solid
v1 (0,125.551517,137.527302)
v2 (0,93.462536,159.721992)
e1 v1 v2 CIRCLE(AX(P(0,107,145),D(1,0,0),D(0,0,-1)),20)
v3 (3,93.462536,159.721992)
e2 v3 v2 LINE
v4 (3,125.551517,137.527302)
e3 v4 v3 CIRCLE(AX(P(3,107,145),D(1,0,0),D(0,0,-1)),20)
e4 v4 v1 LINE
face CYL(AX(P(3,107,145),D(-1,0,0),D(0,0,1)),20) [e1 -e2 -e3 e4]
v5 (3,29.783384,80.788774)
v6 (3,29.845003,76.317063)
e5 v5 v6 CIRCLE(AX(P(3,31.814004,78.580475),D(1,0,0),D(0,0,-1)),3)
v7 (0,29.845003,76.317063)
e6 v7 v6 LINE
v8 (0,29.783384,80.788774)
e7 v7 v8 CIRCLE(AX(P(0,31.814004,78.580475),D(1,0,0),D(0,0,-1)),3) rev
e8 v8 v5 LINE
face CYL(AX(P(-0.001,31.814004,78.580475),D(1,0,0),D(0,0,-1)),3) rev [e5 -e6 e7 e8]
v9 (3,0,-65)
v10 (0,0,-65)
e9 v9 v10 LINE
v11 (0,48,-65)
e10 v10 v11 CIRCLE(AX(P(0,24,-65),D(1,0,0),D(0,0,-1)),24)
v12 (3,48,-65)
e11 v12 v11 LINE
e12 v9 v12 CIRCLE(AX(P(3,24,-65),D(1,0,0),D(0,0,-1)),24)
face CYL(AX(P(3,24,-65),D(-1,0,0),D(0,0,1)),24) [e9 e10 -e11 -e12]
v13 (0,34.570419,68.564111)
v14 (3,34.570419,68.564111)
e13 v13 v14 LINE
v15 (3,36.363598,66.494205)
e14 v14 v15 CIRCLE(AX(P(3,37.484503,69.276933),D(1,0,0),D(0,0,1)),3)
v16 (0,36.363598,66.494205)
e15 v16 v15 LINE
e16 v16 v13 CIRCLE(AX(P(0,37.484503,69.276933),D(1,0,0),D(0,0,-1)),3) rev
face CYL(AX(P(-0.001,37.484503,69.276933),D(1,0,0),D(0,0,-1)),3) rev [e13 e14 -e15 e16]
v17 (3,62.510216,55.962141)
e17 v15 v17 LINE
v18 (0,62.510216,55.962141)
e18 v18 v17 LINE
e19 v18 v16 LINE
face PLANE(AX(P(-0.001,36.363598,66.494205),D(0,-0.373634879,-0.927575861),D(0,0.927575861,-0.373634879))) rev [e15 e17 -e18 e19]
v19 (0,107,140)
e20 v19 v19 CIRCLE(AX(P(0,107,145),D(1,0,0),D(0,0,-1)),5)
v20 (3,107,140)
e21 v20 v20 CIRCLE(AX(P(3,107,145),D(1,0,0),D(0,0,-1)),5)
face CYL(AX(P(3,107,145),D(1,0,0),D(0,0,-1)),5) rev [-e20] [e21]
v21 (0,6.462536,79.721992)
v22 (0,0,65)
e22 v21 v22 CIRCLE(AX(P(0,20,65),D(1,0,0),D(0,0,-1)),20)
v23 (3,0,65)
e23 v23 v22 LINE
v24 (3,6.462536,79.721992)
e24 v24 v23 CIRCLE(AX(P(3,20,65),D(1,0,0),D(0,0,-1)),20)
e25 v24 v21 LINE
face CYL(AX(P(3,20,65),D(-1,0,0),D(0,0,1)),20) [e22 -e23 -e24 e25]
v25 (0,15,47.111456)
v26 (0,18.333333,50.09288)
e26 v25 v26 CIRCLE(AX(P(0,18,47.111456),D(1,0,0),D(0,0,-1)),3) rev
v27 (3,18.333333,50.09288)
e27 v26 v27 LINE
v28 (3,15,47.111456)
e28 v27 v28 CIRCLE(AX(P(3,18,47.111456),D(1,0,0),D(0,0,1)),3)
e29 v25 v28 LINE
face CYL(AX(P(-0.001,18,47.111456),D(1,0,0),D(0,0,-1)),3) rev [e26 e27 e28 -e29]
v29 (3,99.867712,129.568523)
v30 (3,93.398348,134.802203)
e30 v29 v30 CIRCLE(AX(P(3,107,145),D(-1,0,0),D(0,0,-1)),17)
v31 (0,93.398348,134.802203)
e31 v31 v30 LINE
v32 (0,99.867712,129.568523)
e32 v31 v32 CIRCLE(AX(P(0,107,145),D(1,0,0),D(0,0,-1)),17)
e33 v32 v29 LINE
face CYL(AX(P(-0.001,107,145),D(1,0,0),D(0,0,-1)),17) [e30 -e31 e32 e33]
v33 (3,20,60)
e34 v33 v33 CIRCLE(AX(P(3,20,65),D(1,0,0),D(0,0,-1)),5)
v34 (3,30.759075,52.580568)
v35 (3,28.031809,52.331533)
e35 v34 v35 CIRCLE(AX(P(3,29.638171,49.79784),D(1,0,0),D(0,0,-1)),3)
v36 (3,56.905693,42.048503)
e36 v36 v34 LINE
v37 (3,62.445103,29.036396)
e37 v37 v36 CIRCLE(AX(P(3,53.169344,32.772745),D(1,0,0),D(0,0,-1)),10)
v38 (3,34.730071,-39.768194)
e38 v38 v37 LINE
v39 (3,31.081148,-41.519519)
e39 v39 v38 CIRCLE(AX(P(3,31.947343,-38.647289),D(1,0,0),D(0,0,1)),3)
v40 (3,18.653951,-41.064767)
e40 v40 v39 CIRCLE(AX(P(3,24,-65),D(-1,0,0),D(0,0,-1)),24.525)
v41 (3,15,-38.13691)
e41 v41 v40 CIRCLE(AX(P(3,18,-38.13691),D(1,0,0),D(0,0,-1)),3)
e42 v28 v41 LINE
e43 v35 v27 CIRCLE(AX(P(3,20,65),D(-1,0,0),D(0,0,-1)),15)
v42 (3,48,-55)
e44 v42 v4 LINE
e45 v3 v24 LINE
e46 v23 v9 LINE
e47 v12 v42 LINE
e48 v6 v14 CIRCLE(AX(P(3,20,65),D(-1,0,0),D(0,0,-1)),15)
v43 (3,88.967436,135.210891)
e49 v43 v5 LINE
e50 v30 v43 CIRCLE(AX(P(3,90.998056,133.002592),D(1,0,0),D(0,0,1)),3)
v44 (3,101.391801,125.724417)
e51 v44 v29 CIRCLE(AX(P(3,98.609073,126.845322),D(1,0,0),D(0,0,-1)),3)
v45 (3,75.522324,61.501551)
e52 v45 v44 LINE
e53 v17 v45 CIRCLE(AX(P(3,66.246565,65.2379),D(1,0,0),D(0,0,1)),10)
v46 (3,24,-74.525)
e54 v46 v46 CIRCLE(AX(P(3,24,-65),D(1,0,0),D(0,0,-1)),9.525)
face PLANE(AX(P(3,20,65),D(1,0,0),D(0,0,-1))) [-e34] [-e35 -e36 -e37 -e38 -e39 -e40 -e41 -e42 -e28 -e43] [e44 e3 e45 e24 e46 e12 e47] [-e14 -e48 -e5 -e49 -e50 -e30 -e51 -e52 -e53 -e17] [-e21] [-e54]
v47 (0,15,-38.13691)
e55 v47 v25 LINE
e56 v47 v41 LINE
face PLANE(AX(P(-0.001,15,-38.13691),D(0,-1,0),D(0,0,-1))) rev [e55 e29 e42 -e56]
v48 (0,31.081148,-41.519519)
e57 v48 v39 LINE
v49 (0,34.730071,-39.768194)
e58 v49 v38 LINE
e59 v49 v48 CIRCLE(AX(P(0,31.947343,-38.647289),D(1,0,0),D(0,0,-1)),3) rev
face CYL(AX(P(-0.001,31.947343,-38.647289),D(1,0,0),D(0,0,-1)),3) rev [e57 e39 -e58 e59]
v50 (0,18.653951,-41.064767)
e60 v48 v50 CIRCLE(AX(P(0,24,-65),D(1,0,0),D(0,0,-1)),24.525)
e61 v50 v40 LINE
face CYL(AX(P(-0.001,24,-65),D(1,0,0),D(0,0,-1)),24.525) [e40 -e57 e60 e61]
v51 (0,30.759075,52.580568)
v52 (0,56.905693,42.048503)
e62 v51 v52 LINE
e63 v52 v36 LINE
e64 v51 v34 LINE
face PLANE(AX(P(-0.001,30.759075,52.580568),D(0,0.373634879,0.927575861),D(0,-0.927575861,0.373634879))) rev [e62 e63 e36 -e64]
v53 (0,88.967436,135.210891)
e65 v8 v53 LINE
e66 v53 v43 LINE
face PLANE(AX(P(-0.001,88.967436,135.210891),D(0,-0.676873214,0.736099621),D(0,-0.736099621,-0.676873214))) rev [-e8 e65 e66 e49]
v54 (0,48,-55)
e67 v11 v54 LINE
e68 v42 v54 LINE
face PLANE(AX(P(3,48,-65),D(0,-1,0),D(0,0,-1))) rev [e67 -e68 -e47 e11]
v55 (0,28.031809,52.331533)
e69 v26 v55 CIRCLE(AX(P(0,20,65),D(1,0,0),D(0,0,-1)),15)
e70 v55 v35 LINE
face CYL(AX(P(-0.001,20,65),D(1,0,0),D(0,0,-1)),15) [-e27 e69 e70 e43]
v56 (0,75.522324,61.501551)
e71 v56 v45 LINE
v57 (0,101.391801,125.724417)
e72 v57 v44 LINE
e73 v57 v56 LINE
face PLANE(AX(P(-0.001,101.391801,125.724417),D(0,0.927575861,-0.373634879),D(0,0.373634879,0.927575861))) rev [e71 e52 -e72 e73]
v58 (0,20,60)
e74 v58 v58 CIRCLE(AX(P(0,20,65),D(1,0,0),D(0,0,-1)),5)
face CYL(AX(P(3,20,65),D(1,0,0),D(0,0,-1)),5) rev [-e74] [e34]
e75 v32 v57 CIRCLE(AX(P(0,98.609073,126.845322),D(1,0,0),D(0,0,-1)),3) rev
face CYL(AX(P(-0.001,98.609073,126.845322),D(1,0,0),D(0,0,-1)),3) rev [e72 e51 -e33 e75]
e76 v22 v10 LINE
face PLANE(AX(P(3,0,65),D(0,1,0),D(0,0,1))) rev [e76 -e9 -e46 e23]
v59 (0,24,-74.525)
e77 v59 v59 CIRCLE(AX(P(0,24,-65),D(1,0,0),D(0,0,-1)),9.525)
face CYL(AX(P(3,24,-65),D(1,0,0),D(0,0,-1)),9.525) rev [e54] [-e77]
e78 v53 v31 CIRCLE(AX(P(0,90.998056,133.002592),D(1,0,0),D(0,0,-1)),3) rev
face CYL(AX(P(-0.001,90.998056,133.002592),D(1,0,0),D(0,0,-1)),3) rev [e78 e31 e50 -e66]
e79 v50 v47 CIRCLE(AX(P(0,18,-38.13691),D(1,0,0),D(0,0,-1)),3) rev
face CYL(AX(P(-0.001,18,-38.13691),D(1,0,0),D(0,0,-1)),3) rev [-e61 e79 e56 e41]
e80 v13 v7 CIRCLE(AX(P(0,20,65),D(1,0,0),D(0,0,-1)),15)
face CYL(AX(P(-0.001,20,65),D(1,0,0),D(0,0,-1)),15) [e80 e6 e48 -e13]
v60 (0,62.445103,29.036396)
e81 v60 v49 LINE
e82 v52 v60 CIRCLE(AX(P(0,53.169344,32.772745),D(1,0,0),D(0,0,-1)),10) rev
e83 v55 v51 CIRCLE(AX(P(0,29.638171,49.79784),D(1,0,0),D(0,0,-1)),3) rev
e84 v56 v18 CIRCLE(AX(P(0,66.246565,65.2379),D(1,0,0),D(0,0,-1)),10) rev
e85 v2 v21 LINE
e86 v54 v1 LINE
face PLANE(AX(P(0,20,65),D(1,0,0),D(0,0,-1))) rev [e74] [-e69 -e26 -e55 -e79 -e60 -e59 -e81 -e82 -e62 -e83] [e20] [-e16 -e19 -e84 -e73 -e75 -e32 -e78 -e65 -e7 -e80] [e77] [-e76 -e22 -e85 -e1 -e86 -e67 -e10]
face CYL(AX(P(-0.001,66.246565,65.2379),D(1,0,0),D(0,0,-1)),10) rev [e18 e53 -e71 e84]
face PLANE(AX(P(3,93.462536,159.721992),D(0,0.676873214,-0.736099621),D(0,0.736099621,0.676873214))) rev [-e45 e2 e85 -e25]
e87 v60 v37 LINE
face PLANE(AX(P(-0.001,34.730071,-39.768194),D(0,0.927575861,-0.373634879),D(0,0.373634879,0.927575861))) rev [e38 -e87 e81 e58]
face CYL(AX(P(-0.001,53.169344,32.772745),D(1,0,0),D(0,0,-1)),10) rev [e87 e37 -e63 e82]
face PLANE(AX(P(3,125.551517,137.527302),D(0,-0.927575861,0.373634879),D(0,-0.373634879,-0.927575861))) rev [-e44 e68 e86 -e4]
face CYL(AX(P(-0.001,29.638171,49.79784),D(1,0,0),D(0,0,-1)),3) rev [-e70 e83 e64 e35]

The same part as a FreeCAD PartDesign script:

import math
import FreeCAD as App
import Part
import Sketcher

V = App.Vector

doc = App.newDocument("Part")
body = doc.addObject("PartDesign::Body", "Body")

sketch1 = doc.addObject("Sketcher::SketchObject", "Sketch")
body.addObject(sketch1)
sketch1.AttachmentSupport = (doc.YZ_Plane, [""])
sketch1.MapMode = "FlatFace"
sketch1.addGeometry([
    Part.LineSegment(V(0, 65, 0), V(0, -65, 0)),
    Part.ArcOfCircle(Part.Circle(V(24, -65, 0), V(0, 0, 1), 24), math.radians(180), math.radians(360)),
    Part.LineSegment(V(48, -65, 0), V(48, -55, 0)),
    Part.LineSegment(V(48, -55, 0), V(126, 138, 0)),
    Part.ArcOfCircle(Part.Circle(V(107, 145, 0), V(0, 0, 1), 20), math.radians(-22), math.radians(133)),
    Part.LineSegment(V(93, 160, 0), V(6, 80, 0)),
    Part.ArcOfCircle(Part.Circle(V(20, 65, 0), V(0, 0, 1), 20), math.radians(133), math.radians(180)),
], False)
sketch1.addConstraint([
    Sketcher.Constraint("Tangent", 0, 2, 1, 1),
    Sketcher.Constraint("Tangent", 1, 2, 2, 1),
    Sketcher.Constraint("Coincident", 2, 2, 3, 1),
    Sketcher.Constraint("Tangent", 3, 2, 4, 1),
    Sketcher.Constraint("Tangent", 4, 2, 5, 1),
    Sketcher.Constraint("Tangent", 5, 2, 6, 1),
    Sketcher.Constraint("Tangent", 6, 2, 0, 1),
    Sketcher.Constraint("Vertical", 0),
    Sketcher.Constraint("Vertical", 2),
    Sketcher.Constraint("Equal", 4, 6),
    Sketcher.Constraint("Symmetric", 0, 2, 6, 2, -1, 1),
    Sketcher.Constraint("Radius", 1, 24.0),
    Sketcher.Constraint("Radius", 4, 20.0),
    Sketcher.Constraint("DistanceY", 0, 2, 0, 1, 130.0),
    Sketcher.Constraint("DistanceY", 2, 1, 2, 2, 10.0),
    Sketcher.Constraint("DistanceX", -1, 1, 4, 3, 107.0),
    Sketcher.Constraint("DistanceY", -1, 1, 4, 3, 145.0),
])
pad1 = doc.addObject("PartDesign::Pad", "Pad")
body.addObject(pad1)
pad1.Profile = sketch1
pad1.Length = 3

sketch2 = doc.addObject("Sketcher::SketchObject", "Sketch001")
body.addObject(sketch2)
sketch2.AttachmentSupport = (doc.YZ_Plane, [""])
sketch2.MapMode = "FlatFace"
sketch2.AttachmentOffset = App.Placement(V(0, 0, 3), App.Rotation())
sketch2.addGeometry(Part.Circle(V(24, -65, 0), V(0, 0, 1), 10), False)
sketch2.addConstraint([
    Sketcher.Constraint("Diameter", 0, 19.05),
    Sketcher.Constraint("DistanceX", -1, 1, 0, 3, 24.0),
    Sketcher.Constraint("DistanceY", 0, 3, -1, 1, 65.0),
])
doc.recompute()
hole = doc.addObject("PartDesign::Hole", "Hole")
body.addObject(hole)
hole.Profile = sketch2
hole.ThreadType = "None"
hole.Diameter = 19.05
hole.DepthType = "ThroughAll"

sketch3 = doc.addObject("Sketcher::SketchObject", "Sketch002")
body.addObject(sketch3)
sketch3.AttachmentSupport = (doc.YZ_Plane, [""])
sketch3.MapMode = "FlatFace"
sketch3.AttachmentOffset = App.Placement(V(0, 0, 3), App.Rotation())
sketch3.addGeometry(Part.Circle(V(107, 145, 0), V(0, 0, 1), 5), False)
sketch3.addConstraint([
    Sketcher.Constraint("Diameter", 0, 10.0),
    Sketcher.Constraint("DistanceX", -1, 1, 0, 3, 107.0),
    Sketcher.Constraint("DistanceY", -1, 1, 0, 3, 145.0),
])
doc.recompute()
hole2 = doc.addObject("PartDesign::Hole", "Hole001")
body.addObject(hole2)
hole2.Profile = sketch3
hole2.ThreadType = "None"
hole2.Diameter = 10
hole2.DepthType = "ThroughAll"

sketch4 = doc.addObject("Sketcher::SketchObject", "Sketch003")
body.addObject(sketch4)
sketch4.AttachmentSupport = (doc.YZ_Plane, [""])
sketch4.MapMode = "FlatFace"
sketch4.AttachmentOffset = App.Placement(V(0, 0, 3), App.Rotation())
sketch4.addGeometry(Part.Circle(V(20, 65, 0), V(0, 0, 1), 5), False)
sketch4.addConstraint([
    Sketcher.Constraint("Diameter", 0, 10.0),
    Sketcher.Constraint("DistanceX", -1, 1, 0, 3, 20.0),
    Sketcher.Constraint("DistanceY", -1, 1, 0, 3, 65.0),
])
doc.recompute()
hole3 = doc.addObject("PartDesign::Hole", "Hole002")
body.addObject(hole3)
hole3.Profile = sketch4
hole3.ThreadType = "None"
hole3.Diameter = 10
hole3.DepthType = "ThroughAll"

sketch5 = doc.addObject("Sketcher::SketchObject", "Sketch004")
body.addObject(sketch5)
sketch5.AttachmentSupport = (doc.YZ_Plane, [""])
sketch5.MapMode = "FlatFace"
sketch5.AttachmentOffset = App.Placement(V(0, 0, 3), App.Rotation())
sketch5.addGeometry([
    Part.LineSegment(V(15, 47.1, 0), V(15, -38.1, 0)),
    Part.ArcOfCircle(Part.Circle(V(18, -38.1, 0), V(0, 0, 1), 3), math.radians(-180), math.radians(-77)),
    Part.ArcOfCircle(Part.Circle(V(24, -65, 0), V(0, 0, 1), 24.5), math.radians(73), math.radians(103)),
    Part.ArcOfCircle(Part.Circle(V(31.9, -38.6, 0), V(0, 0, 1), 3), math.radians(-107), math.radians(-22)),
    Part.LineSegment(V(34.7, -39.8, 0), V(62.4, 29, 0)),
    Part.ArcOfCircle(Part.Circle(V(53.2, 32.8, 0), V(0, 0, 1), 10), math.radians(-22), math.radians(68)),
    Part.LineSegment(V(56.9, 42, 0), V(30.8, 52.6, 0)),
    Part.ArcOfCircle(Part.Circle(V(29.6, 49.8, 0), V(0, 0, 1), 3), math.radians(68), math.radians(122)),
    Part.ArcOfCircle(Part.Circle(V(20, 65, 0), V(0, 0, 1), 15), math.radians(-96), math.radians(-58)),
    Part.ArcOfCircle(Part.Circle(V(18, 47.1, 0), V(0, 0, 1), 3), math.radians(84), math.radians(180)),
], False)
sketch5.addConstraint([
    Sketcher.Constraint("Tangent", 0, 2, 1, 1),
    Sketcher.Constraint("Tangent", 1, 2, 2, 2),
    Sketcher.Constraint("Tangent", 2, 1, 3, 1),
    Sketcher.Constraint("Tangent", 3, 2, 4, 1),
    Sketcher.Constraint("Tangent", 4, 2, 5, 1),
    Sketcher.Constraint("Tangent", 5, 2, 6, 1),
    Sketcher.Constraint("Tangent", 6, 2, 7, 1),
    Sketcher.Constraint("Tangent", 7, 2, 8, 2),
    Sketcher.Constraint("Tangent", 8, 1, 9, 1),
    Sketcher.Constraint("Tangent", 9, 2, 0, 1),
    Sketcher.Constraint("Vertical", 0),
    Sketcher.Constraint("Equal", 1, 3),
    Sketcher.Constraint("Equal", 3, 7),
    Sketcher.Constraint("Equal", 7, 9),
    Sketcher.Constraint("Perpendicular", 4, 6),
    Sketcher.Constraint("Radius", 1, 3.0),
    Sketcher.Constraint("Radius", 5, 10.0),
    Sketcher.Constraint("Radius", 8, 15.0),
    Sketcher.Constraint("DistanceX", -1, 1, 1, 3, 18.0),
    Sketcher.Constraint("DistanceX", -1, 1, 2, 3, 24.0),
    Sketcher.Constraint("DistanceY", 2, 3, -1, 1, 65.0),
    Sketcher.Constraint("DistanceX", -1, 1, 8, 3, 20.0),
    Sketcher.Constraint("DistanceY", -1, 1, 8, 3, 65.0),
    Sketcher.Constraint("Radius", 2, 24.525),
    Sketcher.Constraint("DistanceX", 3, 3, 5, 3, 21.222001),
    Sketcher.Constraint("Distance", 4, 74.176779),
    Sketcher.Constraint("Distance", 6, 28.188118),
])
pocket1 = doc.addObject("PartDesign::Pocket", "Pocket")
body.addObject(pocket1)
pocket1.Profile = sketch5
pocket1.Type = "UpToFirst"

sketch6 = doc.addObject("Sketcher::SketchObject", "Sketch005")
body.addObject(sketch6)
sketch6.AttachmentSupport = (doc.YZ_Plane, [""])
sketch6.MapMode = "FlatFace"
sketch6.AttachmentOffset = App.Placement(V(0, 0, 3), App.Rotation())
sketch6.addGeometry([
    Part.LineSegment(V(89, 135.2, 0), V(29.8, 80.8, 0)),
    Part.ArcOfCircle(Part.Circle(V(31.8, 78.6, 0), V(0, 0, 1), 3), math.radians(133), math.radians(229)),
    Part.ArcOfCircle(Part.Circle(V(20, 65, 0), V(0, 0, 1), 15), math.radians(14), math.radians(49)),
    Part.ArcOfCircle(Part.Circle(V(37.5, 69.3, 0), V(0, 0, 1), 3), math.radians(-166), math.radians(-112)),
    Part.LineSegment(V(36.4, 66.5, 0), V(62.5, 56, 0)),
    Part.ArcOfCircle(Part.Circle(V(66.2, 65.2, 0), V(0, 0, 1), 10), math.radians(-112), math.radians(-22)),
    Part.LineSegment(V(75.5, 61.5, 0), V(101.4, 125.7, 0)),
    Part.ArcOfCircle(Part.Circle(V(98.6, 126.8, 0), V(0, 0, 1), 3), math.radians(-22), math.radians(65)),
    Part.ArcOfCircle(Part.Circle(V(107, 145, 0), V(0, 0, 1), 17), math.radians(-143), math.radians(-115)),
    Part.ArcOfCircle(Part.Circle(V(91, 133, 0), V(0, 0, 1), 3), math.radians(37), math.radians(133)),
], False)
sketch6.addConstraint([
    Sketcher.Constraint("Tangent", 0, 2, 1, 1),
    Sketcher.Constraint("Tangent", 1, 2, 2, 2),
    Sketcher.Constraint("Tangent", 2, 1, 3, 1),
    Sketcher.Constraint("Tangent", 3, 2, 4, 1),
    Sketcher.Constraint("Tangent", 4, 2, 5, 1),
    Sketcher.Constraint("Tangent", 5, 2, 6, 1),
    Sketcher.Constraint("Tangent", 6, 2, 7, 1),
    Sketcher.Constraint("Tangent", 7, 2, 8, 2),
    Sketcher.Constraint("Tangent", 8, 1, 9, 1),
    Sketcher.Constraint("Tangent", 9, 2, 0, 1),
    Sketcher.Constraint("Equal", 1, 3),
    Sketcher.Constraint("Equal", 3, 7),
    Sketcher.Constraint("Equal", 7, 9),
    Sketcher.Constraint("Perpendicular", 4, 6),
    Sketcher.Constraint("Radius", 1, 3.0),
    Sketcher.Constraint("Radius", 2, 15.0),
    Sketcher.Constraint("Radius", 5, 10.0),
    Sketcher.Constraint("Radius", 8, 17.0),
    Sketcher.Constraint("DistanceX", -1, 1, 2, 3, 20.0),
    Sketcher.Constraint("DistanceY", -1, 1, 2, 3, 65.0),
    Sketcher.Constraint("DistanceX", -1, 1, 8, 3, 107.0),
    Sketcher.Constraint("DistanceY", -1, 1, 8, 3, 145.0),
    Sketcher.Constraint("DistanceX", 1, 2, 1, 3, 1.969001),
    Sketcher.Constraint("DistanceY", -1, 1, 5, 3, 65.2379),
    Sketcher.Constraint("DistanceX", -1, 1, 3, 2, 36.363598),
    Sketcher.Constraint("DistanceX", -1, 1, 6, 2, 101.391801),
    Sketcher.Constraint("DistanceY", 1, 3, 0, 2, 2.208299),
])
pocket2 = doc.addObject("PartDesign::Pocket", "Pocket001")
body.addObject(pocket2)
pocket2.Profile = sketch6
pocket2.Type = "UpToFirst"

doc.recompute()
